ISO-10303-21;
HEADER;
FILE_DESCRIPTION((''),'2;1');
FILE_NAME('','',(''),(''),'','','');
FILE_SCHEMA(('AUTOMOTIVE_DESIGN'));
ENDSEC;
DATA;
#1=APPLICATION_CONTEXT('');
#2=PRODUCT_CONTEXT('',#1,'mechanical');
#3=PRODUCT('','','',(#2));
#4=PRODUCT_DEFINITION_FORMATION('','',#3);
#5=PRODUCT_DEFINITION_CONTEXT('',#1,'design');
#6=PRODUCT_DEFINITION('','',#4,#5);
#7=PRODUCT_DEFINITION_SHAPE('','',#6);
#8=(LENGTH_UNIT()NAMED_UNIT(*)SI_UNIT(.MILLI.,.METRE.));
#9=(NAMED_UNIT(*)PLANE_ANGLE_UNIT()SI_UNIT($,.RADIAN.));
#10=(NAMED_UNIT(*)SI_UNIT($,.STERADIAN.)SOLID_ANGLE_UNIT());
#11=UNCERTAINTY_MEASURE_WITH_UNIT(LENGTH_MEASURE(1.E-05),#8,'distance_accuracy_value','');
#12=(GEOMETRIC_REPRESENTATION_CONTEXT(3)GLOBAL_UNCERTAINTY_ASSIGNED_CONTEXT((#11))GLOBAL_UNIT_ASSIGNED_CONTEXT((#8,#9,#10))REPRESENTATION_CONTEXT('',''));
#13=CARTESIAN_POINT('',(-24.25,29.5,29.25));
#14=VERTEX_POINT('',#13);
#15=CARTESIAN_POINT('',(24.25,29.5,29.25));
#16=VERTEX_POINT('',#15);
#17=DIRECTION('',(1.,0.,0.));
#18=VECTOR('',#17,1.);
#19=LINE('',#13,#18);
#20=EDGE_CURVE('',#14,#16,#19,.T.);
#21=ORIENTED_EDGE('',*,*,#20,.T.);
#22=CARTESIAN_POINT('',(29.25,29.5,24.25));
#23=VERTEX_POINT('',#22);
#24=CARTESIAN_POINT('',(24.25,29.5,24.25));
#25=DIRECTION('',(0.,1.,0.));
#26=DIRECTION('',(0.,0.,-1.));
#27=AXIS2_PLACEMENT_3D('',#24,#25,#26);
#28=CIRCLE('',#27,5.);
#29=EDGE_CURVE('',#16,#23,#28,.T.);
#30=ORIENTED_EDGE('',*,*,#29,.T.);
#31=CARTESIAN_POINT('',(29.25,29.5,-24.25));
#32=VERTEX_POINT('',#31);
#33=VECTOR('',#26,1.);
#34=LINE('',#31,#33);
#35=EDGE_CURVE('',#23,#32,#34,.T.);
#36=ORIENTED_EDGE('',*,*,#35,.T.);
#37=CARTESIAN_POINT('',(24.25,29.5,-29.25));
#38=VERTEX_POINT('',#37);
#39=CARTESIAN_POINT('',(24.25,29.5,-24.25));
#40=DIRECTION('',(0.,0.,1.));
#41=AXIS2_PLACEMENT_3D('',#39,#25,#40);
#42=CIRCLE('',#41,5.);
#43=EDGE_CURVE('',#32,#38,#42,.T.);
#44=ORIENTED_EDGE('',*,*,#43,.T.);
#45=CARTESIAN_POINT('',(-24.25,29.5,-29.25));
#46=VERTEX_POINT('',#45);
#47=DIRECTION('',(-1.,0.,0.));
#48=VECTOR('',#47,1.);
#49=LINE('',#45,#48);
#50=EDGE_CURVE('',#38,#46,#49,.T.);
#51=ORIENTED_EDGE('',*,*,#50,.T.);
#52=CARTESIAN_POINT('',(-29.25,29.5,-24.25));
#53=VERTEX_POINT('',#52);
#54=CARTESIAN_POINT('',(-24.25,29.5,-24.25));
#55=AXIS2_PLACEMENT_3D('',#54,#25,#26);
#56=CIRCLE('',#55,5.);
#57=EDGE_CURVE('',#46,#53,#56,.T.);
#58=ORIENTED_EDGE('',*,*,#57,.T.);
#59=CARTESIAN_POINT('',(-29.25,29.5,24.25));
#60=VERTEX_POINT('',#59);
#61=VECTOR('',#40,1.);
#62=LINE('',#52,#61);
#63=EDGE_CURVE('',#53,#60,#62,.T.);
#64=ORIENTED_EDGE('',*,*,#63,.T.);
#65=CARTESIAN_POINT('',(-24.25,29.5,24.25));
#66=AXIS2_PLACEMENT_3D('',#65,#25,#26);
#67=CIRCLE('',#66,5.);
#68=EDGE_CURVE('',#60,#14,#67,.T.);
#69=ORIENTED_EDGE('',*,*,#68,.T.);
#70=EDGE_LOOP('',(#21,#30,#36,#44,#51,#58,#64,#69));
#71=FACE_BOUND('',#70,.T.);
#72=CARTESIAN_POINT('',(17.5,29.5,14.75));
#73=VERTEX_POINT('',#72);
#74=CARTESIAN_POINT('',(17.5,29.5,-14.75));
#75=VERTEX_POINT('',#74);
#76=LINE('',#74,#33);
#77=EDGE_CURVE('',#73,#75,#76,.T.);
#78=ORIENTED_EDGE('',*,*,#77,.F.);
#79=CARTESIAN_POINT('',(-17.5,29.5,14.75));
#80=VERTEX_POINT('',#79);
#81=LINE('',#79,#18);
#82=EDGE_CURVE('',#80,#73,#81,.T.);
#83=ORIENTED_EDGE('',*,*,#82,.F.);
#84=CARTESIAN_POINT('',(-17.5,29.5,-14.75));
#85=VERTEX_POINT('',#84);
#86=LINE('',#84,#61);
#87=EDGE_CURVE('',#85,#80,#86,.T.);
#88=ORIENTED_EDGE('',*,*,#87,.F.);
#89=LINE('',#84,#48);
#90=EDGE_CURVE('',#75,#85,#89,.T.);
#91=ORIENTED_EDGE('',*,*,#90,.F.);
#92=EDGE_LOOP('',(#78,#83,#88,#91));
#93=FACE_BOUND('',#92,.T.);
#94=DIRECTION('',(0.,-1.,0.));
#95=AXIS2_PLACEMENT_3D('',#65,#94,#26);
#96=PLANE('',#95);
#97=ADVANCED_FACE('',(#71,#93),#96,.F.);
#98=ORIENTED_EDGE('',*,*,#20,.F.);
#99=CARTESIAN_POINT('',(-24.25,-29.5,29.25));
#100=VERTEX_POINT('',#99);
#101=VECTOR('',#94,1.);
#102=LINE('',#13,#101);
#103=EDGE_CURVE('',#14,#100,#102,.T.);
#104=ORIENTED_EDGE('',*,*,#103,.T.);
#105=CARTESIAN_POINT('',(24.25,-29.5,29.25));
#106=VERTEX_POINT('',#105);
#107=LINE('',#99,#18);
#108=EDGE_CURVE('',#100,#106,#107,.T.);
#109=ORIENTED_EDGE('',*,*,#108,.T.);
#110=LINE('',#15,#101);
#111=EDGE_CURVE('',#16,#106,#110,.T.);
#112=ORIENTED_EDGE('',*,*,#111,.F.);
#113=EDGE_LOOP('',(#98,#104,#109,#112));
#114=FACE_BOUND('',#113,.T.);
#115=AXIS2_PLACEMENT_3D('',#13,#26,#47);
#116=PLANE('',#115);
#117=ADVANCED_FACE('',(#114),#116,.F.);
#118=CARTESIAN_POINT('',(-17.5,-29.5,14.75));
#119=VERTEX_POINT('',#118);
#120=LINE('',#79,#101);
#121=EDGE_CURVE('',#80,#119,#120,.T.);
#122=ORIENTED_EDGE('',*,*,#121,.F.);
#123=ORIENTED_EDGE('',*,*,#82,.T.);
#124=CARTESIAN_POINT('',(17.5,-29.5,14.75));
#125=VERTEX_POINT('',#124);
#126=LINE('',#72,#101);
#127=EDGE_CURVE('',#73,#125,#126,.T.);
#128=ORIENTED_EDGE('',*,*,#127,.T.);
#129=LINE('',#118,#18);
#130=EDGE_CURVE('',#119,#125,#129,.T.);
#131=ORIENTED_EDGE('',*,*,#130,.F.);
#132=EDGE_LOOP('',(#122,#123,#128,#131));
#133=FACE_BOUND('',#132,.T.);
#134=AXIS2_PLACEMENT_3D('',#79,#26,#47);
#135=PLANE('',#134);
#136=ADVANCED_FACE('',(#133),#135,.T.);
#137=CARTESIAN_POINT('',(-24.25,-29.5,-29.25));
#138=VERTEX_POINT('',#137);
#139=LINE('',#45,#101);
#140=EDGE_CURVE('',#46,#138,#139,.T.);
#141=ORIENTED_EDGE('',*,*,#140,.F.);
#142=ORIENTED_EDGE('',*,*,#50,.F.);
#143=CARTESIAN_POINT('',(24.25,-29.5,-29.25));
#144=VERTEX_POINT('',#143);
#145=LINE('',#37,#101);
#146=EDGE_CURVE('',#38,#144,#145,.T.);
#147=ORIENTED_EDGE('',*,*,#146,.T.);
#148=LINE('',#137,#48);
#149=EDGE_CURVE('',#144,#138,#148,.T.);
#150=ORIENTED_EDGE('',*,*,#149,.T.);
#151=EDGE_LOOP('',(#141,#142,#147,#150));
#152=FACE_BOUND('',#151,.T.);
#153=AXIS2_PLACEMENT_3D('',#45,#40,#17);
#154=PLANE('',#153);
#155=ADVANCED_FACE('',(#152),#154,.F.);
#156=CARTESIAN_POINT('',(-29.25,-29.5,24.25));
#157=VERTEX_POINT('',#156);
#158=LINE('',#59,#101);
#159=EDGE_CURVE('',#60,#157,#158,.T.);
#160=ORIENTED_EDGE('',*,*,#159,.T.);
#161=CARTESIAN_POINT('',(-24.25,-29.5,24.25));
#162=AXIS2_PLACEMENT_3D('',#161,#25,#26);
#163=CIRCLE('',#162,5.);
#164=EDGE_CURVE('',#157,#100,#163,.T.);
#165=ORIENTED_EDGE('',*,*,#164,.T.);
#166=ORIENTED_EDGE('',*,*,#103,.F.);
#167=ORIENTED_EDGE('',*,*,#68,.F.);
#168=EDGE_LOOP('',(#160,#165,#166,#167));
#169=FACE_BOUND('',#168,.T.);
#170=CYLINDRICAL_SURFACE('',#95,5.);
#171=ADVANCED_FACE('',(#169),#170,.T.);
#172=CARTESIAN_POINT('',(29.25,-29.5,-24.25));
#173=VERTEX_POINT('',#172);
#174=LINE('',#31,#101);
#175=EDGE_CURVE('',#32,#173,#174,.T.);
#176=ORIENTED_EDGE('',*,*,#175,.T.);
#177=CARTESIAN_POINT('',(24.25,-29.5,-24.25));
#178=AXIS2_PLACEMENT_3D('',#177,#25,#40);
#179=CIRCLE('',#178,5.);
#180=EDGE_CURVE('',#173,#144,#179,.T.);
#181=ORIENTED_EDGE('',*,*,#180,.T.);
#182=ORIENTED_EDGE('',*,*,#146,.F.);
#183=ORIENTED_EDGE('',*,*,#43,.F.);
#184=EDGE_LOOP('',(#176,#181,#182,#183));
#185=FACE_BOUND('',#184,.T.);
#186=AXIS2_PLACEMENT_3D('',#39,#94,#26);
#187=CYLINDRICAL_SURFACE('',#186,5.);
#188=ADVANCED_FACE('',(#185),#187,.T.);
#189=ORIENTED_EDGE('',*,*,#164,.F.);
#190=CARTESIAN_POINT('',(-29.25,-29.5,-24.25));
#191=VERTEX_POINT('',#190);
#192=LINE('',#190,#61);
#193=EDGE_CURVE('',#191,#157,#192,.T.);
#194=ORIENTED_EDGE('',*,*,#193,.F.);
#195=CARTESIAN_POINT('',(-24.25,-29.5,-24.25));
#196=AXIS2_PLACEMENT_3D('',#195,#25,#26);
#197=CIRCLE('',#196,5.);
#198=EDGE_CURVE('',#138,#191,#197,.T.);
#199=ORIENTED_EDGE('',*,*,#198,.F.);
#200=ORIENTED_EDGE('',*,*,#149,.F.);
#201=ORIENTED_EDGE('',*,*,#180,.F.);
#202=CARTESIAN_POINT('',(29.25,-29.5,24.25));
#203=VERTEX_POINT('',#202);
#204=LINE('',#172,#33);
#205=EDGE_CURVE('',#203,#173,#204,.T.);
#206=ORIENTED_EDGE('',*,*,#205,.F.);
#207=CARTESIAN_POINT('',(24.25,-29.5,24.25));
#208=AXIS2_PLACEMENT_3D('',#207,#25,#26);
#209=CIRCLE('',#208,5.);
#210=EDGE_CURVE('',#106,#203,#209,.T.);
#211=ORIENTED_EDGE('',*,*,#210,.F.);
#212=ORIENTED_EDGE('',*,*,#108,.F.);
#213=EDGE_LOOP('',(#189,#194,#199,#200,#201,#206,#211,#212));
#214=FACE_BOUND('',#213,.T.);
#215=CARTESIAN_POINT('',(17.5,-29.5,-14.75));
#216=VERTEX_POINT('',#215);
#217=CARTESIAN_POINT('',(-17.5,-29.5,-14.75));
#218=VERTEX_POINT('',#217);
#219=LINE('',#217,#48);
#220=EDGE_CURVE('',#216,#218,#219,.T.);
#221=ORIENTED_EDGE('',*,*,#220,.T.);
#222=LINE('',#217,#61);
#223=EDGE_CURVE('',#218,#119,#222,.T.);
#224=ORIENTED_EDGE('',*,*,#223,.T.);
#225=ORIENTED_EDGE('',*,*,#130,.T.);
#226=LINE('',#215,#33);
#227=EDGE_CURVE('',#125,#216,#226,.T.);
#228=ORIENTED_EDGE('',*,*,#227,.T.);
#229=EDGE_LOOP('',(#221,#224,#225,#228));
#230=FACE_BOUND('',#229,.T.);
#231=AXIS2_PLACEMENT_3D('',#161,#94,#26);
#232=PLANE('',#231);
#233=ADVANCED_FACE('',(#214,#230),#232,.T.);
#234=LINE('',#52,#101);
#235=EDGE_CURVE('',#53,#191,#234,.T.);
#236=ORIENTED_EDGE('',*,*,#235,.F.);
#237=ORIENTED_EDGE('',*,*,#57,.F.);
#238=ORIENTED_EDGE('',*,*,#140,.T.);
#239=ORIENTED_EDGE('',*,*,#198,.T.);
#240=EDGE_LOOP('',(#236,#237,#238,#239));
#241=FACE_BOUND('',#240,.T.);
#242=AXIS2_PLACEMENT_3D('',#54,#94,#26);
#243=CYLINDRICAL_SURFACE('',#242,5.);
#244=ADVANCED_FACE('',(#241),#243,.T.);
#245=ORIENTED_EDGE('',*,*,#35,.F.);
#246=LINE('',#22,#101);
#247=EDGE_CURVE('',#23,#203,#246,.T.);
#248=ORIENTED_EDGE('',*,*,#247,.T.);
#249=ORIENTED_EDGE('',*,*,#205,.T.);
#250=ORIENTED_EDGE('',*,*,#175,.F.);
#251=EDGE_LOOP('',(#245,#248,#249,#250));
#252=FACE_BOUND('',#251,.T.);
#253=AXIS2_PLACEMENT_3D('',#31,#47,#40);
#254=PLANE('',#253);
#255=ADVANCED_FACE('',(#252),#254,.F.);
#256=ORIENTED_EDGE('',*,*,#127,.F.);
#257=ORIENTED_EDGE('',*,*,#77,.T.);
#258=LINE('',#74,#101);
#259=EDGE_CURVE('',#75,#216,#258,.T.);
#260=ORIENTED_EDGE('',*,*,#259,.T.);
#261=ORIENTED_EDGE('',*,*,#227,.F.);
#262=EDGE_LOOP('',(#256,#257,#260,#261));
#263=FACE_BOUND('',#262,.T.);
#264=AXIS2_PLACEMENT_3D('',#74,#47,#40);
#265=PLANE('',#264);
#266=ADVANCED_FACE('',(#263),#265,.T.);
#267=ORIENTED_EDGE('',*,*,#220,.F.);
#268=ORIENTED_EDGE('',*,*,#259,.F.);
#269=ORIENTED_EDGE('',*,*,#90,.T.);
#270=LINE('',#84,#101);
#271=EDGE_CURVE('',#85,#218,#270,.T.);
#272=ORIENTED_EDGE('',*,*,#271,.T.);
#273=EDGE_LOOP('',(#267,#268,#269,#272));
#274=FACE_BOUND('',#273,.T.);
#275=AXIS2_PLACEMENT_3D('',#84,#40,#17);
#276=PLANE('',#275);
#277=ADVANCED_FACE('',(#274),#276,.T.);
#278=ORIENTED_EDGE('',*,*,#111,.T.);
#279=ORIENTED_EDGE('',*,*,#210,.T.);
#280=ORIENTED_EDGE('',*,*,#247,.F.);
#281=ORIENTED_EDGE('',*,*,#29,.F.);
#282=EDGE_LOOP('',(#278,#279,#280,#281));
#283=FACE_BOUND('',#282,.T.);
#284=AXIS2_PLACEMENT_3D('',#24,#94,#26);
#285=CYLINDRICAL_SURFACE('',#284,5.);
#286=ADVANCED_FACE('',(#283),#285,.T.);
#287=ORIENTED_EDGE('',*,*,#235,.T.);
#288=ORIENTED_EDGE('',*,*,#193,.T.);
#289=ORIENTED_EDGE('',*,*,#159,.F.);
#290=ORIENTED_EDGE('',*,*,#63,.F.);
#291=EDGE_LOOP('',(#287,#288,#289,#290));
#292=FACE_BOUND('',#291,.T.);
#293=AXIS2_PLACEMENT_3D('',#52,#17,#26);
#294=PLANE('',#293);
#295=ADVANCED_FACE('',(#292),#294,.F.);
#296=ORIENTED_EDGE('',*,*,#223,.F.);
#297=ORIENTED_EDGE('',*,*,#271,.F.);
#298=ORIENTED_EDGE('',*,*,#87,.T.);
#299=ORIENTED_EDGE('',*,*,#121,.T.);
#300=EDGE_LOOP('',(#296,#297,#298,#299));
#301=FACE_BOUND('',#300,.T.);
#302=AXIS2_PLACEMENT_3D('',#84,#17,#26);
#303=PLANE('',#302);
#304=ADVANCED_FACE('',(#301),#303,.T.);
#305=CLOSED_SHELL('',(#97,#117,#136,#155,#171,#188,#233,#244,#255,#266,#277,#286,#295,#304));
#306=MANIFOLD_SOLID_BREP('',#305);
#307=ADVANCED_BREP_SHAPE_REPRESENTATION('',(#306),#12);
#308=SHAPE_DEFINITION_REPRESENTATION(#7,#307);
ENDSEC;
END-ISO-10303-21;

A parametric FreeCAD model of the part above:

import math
import FreeCAD as App
import Part
import Sketcher

V = App.Vector
Q = App.Units.Quantity


def add_polygon(sketch, points):
    """Adds a closed chain of lines whose ends are joined by coincident constraints."""
    first, n = sketch.GeometryCount, len(points)
    for a, b in zip(points, points[1:] + points[:1]):
        sketch.addGeometry(Part.LineSegment(App.Vector(*a, 0), App.Vector(*b, 0)), False)
    for i in range(n):
        sketch.addConstraint(Sketcher.Constraint("Coincident", first + i, 2, first + (i + 1) % n, 1))

doc = App.newDocument("Part")
body = doc.addObject("PartDesign::Body", "Body")

# Sketch on XZ plane
sketch1 = doc.addObject("Sketcher::SketchObject", "Sketch")
body.addObject(sketch1)
sketch1.AttachmentSupport = (doc.XZ_Plane, [""])
sketch1.MapMode = "FlatFace"
sketch1.addGeometry(Part.LineSegment(V(24.25, -29.25, 0), V(-24.25, -29.25, 0)), False)  # 0
sketch1.addGeometry(Part.ArcOfCircle(Part.Circle(V(-24.25, -24.25, 0), V(0, 0, 1), 5), math.radians(180), math.radians(270)), False)  # 1
sketch1.addGeometry(Part.LineSegment(V(-29.25, -24.25, 0), V(-29.25, 24.25, 0)), False)  # 2
sketch1.addGeometry(Part.ArcOfCircle(Part.Circle(V(-24.25, 24.25, 0), V(0, 0, 1), 5), math.radians(90), math.radians(180)), False)  # 3
sketch1.addGeometry(Part.LineSegment(V(-24.25, 29.25, 0), V(24.25, 29.25, 0)), False)  # 4
sketch1.addGeometry(Part.ArcOfCircle(Part.Circle(V(24.25, 24.25, 0), V(0, 0, 1), 5), math.radians(0), math.radians(90)), False)  # 5
sketch1.addGeometry(Part.LineSegment(V(29.25, 24.25, 0), V(29.25, -24.25, 0)), False)  # 6
sketch1.addGeometry(Part.ArcOfCircle(Part.Circle(V(24.25, -24.25, 0), V(0, 0, 1), 5), math.radians(-90), math.radians(0)), False)  # 7
add_polygon(sketch1, [(-17.5, 14.75), (-17.5, -14.75), (17.5, -14.75), (17.5, 14.75)])  # lines 8-11
sketch1.addConstraint([
    Sketcher.Constraint("Tangent", 0, 2, 1, 2),
    Sketcher.Constraint("Tangent", 1, 1, 2, 1),
    Sketcher.Constraint("Tangent", 2, 2, 3, 2),
    Sketcher.Constraint("Tangent", 3, 1, 4, 1),
    Sketcher.Constraint("Tangent", 4, 2, 5, 2),
    Sketcher.Constraint("Tangent", 5, 1, 6, 1),
    Sketcher.Constraint("Tangent", 6, 2, 7, 2),
    Sketcher.Constraint("Tangent", 7, 1, 0, 1),
    Sketcher.Constraint("Horizontal", 0),
    Sketcher.Constraint("Vertical", 2),
    Sketcher.Constraint("Horizontal", 4),
    Sketcher.Constraint("Vertical", 6),
    Sketcher.Constraint("Vertical", 8),
    Sketcher.Constraint("Horizontal", 9),
    Sketcher.Constraint("Vertical", 10),
    Sketcher.Constraint("Horizontal", 11),
    Sketcher.Constraint("Equal", 1, 3),
    Sketcher.Constraint("Equal", 3, 5),
    Sketcher.Constraint("Equal", 5, 7),
    Sketcher.Constraint("Symmetric", 1, 3, 5, 3, -1, 1),
    Sketcher.Constraint("Symmetric", 8, 2, 10, 2, -1, 1),
    Sketcher.Constraint("Equal", 4, 2),
    Sketcher.Constraint("Radius", 1, Q("5 mm")),
    Sketcher.Constraint("DistanceX", 9, 1, 9, 2, Q("35 mm")),
    Sketcher.Constraint("DistanceX", 0, 2, 0, 1, Q("48.5 mm")),
    Sketcher.Constraint("DistanceY", 8, 2, 8, 1, Q("29.5 mm")),
])
pad1 = doc.addObject("PartDesign::Pad", "Pad")
body.addObject(pad1)
pad1.Profile = sketch1
pad1.Length = 59
pad1.Midplane = True

doc.recompute()
